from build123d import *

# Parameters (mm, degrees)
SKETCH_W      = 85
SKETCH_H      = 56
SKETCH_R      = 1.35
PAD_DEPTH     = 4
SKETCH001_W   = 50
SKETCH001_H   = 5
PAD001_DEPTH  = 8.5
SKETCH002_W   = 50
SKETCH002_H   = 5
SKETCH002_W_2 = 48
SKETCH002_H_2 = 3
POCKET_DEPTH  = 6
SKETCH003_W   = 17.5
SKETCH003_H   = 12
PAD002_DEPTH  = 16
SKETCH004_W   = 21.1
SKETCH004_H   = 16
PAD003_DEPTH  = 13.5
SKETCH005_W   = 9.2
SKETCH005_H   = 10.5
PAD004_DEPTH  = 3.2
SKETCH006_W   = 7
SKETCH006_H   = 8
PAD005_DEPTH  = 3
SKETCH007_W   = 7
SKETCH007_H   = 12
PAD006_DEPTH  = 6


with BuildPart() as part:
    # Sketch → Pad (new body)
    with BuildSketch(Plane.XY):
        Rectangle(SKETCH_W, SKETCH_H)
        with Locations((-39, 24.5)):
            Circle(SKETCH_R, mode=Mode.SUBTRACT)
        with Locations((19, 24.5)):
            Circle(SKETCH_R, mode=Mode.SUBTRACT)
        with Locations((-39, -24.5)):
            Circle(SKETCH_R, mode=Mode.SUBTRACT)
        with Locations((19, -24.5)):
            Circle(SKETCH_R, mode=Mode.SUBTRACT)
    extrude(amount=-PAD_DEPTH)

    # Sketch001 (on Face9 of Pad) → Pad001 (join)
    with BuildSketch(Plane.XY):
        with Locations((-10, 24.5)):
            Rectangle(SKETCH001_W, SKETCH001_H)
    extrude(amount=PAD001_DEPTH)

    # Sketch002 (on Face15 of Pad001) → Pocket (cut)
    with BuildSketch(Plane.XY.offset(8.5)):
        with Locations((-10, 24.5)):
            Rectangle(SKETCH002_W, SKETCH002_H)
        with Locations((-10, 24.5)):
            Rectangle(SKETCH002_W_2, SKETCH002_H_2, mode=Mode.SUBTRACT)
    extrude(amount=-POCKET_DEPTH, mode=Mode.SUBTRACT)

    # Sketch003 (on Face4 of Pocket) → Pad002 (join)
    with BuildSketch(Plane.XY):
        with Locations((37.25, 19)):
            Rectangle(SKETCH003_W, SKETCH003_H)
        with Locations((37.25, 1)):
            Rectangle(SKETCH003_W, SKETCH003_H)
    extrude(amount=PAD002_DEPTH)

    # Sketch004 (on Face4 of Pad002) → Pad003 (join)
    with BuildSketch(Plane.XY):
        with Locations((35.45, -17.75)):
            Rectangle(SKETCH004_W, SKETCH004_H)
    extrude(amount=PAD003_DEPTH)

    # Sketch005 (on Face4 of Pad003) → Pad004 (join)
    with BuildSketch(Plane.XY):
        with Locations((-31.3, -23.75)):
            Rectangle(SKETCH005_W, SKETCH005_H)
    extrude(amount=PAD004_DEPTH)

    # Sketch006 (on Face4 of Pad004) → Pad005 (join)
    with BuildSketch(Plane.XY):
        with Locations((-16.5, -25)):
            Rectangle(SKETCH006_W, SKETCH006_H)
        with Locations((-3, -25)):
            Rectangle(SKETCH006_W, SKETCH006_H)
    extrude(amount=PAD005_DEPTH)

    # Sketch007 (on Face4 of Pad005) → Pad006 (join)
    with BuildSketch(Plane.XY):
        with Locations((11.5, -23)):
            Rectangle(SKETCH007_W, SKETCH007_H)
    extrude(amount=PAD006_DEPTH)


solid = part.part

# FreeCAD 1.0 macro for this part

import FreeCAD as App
import Part
import Sketcher
from FreeCAD import Vector
Q = App.Units.Quantity

doc = App.newDocument("Part")
body = doc.addObject("PartDesign::Body", "Body")

# Sketch on XY plane
sketch1 = doc.addObject("Sketcher::SketchObject", "Sketch")
body.addObject(sketch1)
sketch1.AttachmentSupport = (doc.XY_Plane, [""])
sketch1.MapMode = "FlatFace"
sketch1.addGeometry(Part.LineSegment(Vector(-42.5, 28, 0), Vector(-42.5, -28, 0)), False)
sketch1.addGeometry(Part.LineSegment(Vector(-42.5, -28, 0), Vector(42.5, -28, 0)), False)
sketch1.addGeometry(Part.LineSegment(Vector(42.5, -28, 0), Vector(42.5, 28, 0)), False)
sketch1.addGeometry(Part.LineSegment(Vector(42.5, 28, 0), Vector(-42.5, 28, 0)), False)
sketch1.addGeometry(Part.Circle(Vector(-39, -24.5, 0), Vector(0, 0, 1), 1.35), False)
sketch1.addGeometry(Part.Circle(Vector(19, -24.5, 0), Vector(0, 0, 1), 1.35), False)
sketch1.addGeometry(Part.Circle(Vector(-39, 24.5, 0), Vector(0, 0, 1), 1.35), False)
sketch1.addGeometry(Part.Circle(Vector(19, 24.5, 0), Vector(0, 0, 1), 1.35), False)
sketch1.addConstraint(Sketcher.Constraint("Coincident", 0, 2, 1, 1))
sketch1.addConstraint(Sketcher.Constraint("Coincident", 1, 2, 2, 1))
sketch1.addConstraint(Sketcher.Constraint("Coincident", 2, 2, 3, 1))
sketch1.addConstraint(Sketcher.Constraint("Coincident", 3, 2, 0, 1))
sketch1.addConstraint(Sketcher.Constraint("Vertical", 0))
sketch1.addConstraint(Sketcher.Constraint("Horizontal", 1))
sketch1.addConstraint(Sketcher.Constraint("Vertical", 2))
sketch1.addConstraint(Sketcher.Constraint("Horizontal", 3))
sketch1.addConstraint(Sketcher.Constraint("Equal", 4, 5))
sketch1.addConstraint(Sketcher.Constraint("Equal", 5, 6))
sketch1.addConstraint(Sketcher.Constraint("Equal", 6, 7))
sketch1.addConstraint(Sketcher.Constraint("Symmetric", 0, 2, 2, 2, -1, 1))
sketch1.addConstraint(Sketcher.Constraint("Symmetric", 4, 3, 6, 3, -1))
sketch1.addConstraint(Sketcher.Constraint("Symmetric", 5, 3, 7, 3, -1))
sketch1.addConstraint(Sketcher.Constraint("Horizontal", 4, 3, 5, 3))
sketch1.addConstraint(Sketcher.Constraint("Diameter", 4, Q("2.7 mm")))
sketch1.addConstraint(Sketcher.Constraint("DistanceX", 1, 1, 1, 2, Q("85 mm")))
sketch1.addConstraint(Sketcher.Constraint("DistanceY", 0, 2, 0, 1, Q("56 mm")))
sketch1.addConstraint(Sketcher.Constraint("DistanceX", 4, 3, -1, 1, Q("39 mm")))
sketch1.addConstraint(Sketcher.Constraint("DistanceX", -1, 1, 5, 3, Q("19 mm")))
sketch1.addConstraint(Sketcher.Constraint("DistanceY", 4, 3, 6, 3, Q("49 mm")))
pad1 = doc.addObject("PartDesign::Pad", "Pad")
body.addObject(pad1)
pad1.Profile = sketch1
pad1.Length = 4
pad1.Reversed = True

# Sketch on XY plane
sketch2 = doc.addObject("Sketcher::SketchObject", "Sketch001")
body.addObject(sketch2)
sketch2.AttachmentSupport = (doc.XY_Plane, [""])
sketch2.MapMode = "FlatFace"
sketch2.addGeometry(Part.LineSegment(Vector(-35, 27, 0), Vector(-35, 22, 0)), False)
sketch2.addGeometry(Part.LineSegment(Vector(-35, 22, 0), Vector(15, 22, 0)), False)
sketch2.addGeometry(Part.LineSegment(Vector(15, 22, 0), Vector(15, 27, 0)), False)
sketch2.addGeometry(Part.LineSegment(Vector(15, 27, 0), Vector(-35, 27, 0)), False)
sketch2.addConstraint(Sketcher.Constraint("Coincident", 0, 2, 1, 1))
sketch2.addConstraint(Sketcher.Constraint("Coincident", 1, 2, 2, 1))
sketch2.addConstraint(Sketcher.Constraint("Coincident", 2, 2, 3, 1))
sketch2.addConstraint(Sketcher.Constraint("Coincident", 3, 2, 0, 1))
sketch2.addConstraint(Sketcher.Constraint("Vertical", 0))
sketch2.addConstraint(Sketcher.Constraint("Horizontal", 1))
sketch2.addConstraint(Sketcher.Constraint("Vertical", 2))
sketch2.addConstraint(Sketcher.Constraint("Horizontal", 3))
sketch2.addConstraint(Sketcher.Constraint("DistanceX", 1, 1, 1, 2, Q("50 mm")))
sketch2.addConstraint(Sketcher.Constraint("DistanceY", 0, 2, 0, 1, Q("5 mm")))
sketch2.addConstraint(Sketcher.Constraint("DistanceX", 0, 2, -1, 1, Q("35 mm")))
sketch2.addConstraint(Sketcher.Constraint("DistanceY", -1, 1, 0, 2, Q("22 mm")))
pad2 = doc.addObject("PartDesign::Pad", "Pad001")
body.addObject(pad2)
pad2.Profile = sketch2
pad2.Length = 8.5

# Sketch on XY plane
sketch3 = doc.addObject("Sketcher::SketchObject", "Sketch002")
body.addObject(sketch3)
sketch3.AttachmentSupport = (doc.XY_Plane, [""])
sketch3.MapMode = "FlatFace"
sketch3.AttachmentOffset = App.Placement(Vector(0, 0, 8.5), App.Rotation())
sketch3.addGeometry(Part.LineSegment(Vector(-35, 27, 0), Vector(-35, 22, 0)), False)
sketch3.addGeometry(Part.LineSegment(Vector(-35, 22, 0), Vector(15, 22, 0)), False)
sketch3.addGeometry(Part.LineSegment(Vector(15, 22, 0), Vector(15, 27, 0)), False)
sketch3.addGeometry(Part.LineSegment(Vector(15, 27, 0), Vector(-35, 27, 0)), False)
sketch3.addGeometry(Part.LineSegment(Vector(14, 23, 0), Vector(-34, 23, 0)), False)
sketch3.addGeometry(Part.LineSegment(Vector(-34, 23, 0), Vector(-34, 26, 0)), False)
sketch3.addGeometry(Part.LineSegment(Vector(-34, 26, 0), Vector(14, 26, 0)), False)
sketch3.addGeometry(Part.LineSegment(Vector(14, 26, 0), Vector(14, 23, 0)), False)
sketch3.addConstraint(Sketcher.Constraint("Coincident", 0, 2, 1, 1))
sketch3.addConstraint(Sketcher.Constraint("Coincident", 1, 2, 2, 1))
sketch3.addConstraint(Sketcher.Constraint("Coincident", 2, 2, 3, 1))
sketch3.addConstraint(Sketcher.Constraint("Coincident", 3, 2, 0, 1))
sketch3.addConstraint(Sketcher.Constraint("Coincident", 4, 2, 5, 1))
sketch3.addConstraint(Sketcher.Constraint("Coincident", 5, 2, 6, 1))
sketch3.addConstraint(Sketcher.Constraint("Coincident", 6, 2, 7, 1))
sketch3.addConstraint(Sketcher.Constraint("Coincident", 7, 2, 4, 1))
sketch3.addConstraint(Sketcher.Constraint("Vertical", 0))
sketch3.addConstraint(Sketcher.Constraint("Horizontal", 1))
sketch3.addConstraint(Sketcher.Constraint("Vertical", 2))
sketch3.addConstraint(Sketcher.Constraint("Horizontal", 3))
sketch3.addConstraint(Sketcher.Constraint("Horizontal", 4))
sketch3.addConstraint(Sketcher.Constraint("Vertical", 5))
sketch3.addConstraint(Sketcher.Constraint("Horizontal", 6))
sketch3.addConstraint(Sketcher.Constraint("Vertical", 7))
sketch3.addConstraint(Sketcher.Constraint("DistanceX", 1, 1, 1, 2, Q("50 mm")))
sketch3.addConstraint(Sketcher.Constraint("DistanceX", 4, 2, 4, 1, Q("48 mm")))
sketch3.addConstraint(Sketcher.Constraint("DistanceY", 0, 2, 0, 1, Q("5 mm")))
sketch3.addConstraint(Sketcher.Constraint("DistanceY", 5, 1, 5, 2, Q("3 mm")))
sketch3.addConstraint(Sketcher.Constraint("DistanceX", 0, 2, -1, 1, Q("35 mm")))
sketch3.addConstraint(Sketcher.Constraint("DistanceY", -1, 1, 0, 2, Q("22 mm")))
sketch3.addConstraint(Sketcher.Constraint("DistanceX", 4, 2, -1, 1, Q("34 mm")))
sketch3.addConstraint(Sketcher.Constraint("DistanceY", -1, 1, 4, 2, Q("23 mm")))
pocket1 = doc.addObject("PartDesign::Pocket", "Pocket")
body.addObject(pocket1)
pocket1.Profile = sketch3
pocket1.Length = 6

# Sketch on XY plane
sketch4 = doc.addObject("Sketcher::SketchObject", "Sketch003")
body.addObject(sketch4)
sketch4.AttachmentSupport = (doc.XY_Plane, [""])
sketch4.MapMode = "FlatFace"
sketch4.addGeometry(Part.LineSegment(Vector(28.5, 25, 0), Vector(28.5, 13, 0)), False)
sketch4.addGeometry(Part.LineSegment(Vector(28.5, 13, 0), Vector(46, 13, 0)), False)
sketch4.addGeometry(Part.LineSegment(Vector(46, 13, 0), Vector(46, 25, 0)), False)
sketch4.addGeometry(Part.LineSegment(Vector(46, 25, 0), Vector(28.5, 25, 0)), False)
sketch4.addGeometry(Part.LineSegment(Vector(28.5, 7, 0), Vector(28.5, -5, 0)), False)
sketch4.addGeometry(Part.LineSegment(Vector(28.5, -5, 0), Vector(46, -5, 0)), False)
sketch4.addGeometry(Part.LineSegment(Vector(46, -5, 0), Vector(46, 7, 0)), False)
sketch4.addGeometry(Part.LineSegment(Vector(46, 7, 0), Vector(28.5, 7, 0)), False)
sketch4.addConstraint(Sketcher.Constraint("Coincident", 0, 2, 1, 1))
sketch4.addConstraint(Sketcher.Constraint("Coincident", 1, 2, 2, 1))
sketch4.addConstraint(Sketcher.Constraint("Coincident", 2, 2, 3, 1))
sketch4.addConstraint(Sketcher.Constraint("Coincident", 3, 2, 0, 1))
sketch4.addConstraint(Sketcher.Constraint("Coincident", 4, 2, 5, 1))
sketch4.addConstraint(Sketcher.Constraint("Coincident", 5, 2, 6, 1))
sketch4.addConstraint(Sketcher.Constraint("Coincident", 6, 2, 7, 1))
sketch4.addConstraint(Sketcher.Constraint("Coincident", 7, 2, 4, 1))
sketch4.addConstraint(Sketcher.Constraint("Vertical", 0))
sketch4.addConstraint(Sketcher.Constraint("Horizontal", 1))
sketch4.addConstraint(Sketcher.Constraint("Vertical", 2))
sketch4.addConstraint(Sketcher.Constraint("Horizontal", 3))
sketch4.addConstraint(Sketcher.Constraint("Vertical", 4))
sketch4.addConstraint(Sketcher.Constraint("Horizontal", 5))
sketch4.addConstraint(Sketcher.Constraint("Vertical", 6))
sketch4.addConstraint(Sketcher.Constraint("Horizontal", 7))
sketch4.addConstraint(Sketcher.Constraint("Vertical", 3, 2, 4, 2))
sketch4.addConstraint(Sketcher.Constraint("Vertical", 2, 2, 5, 2))
sketch4.addConstraint(Sketcher.Constraint("Equal", 2, 4))
sketch4.addConstraint(Sketcher.Constraint("DistanceY", 0, 2, 0, 1, Q("12 mm")))
sketch4.addConstraint(Sketcher.Constraint("DistanceX", 1, 1, 1, 2, Q("17.5 mm")))
sketch4.addConstraint(Sketcher.Constraint("DistanceY", -1, 1, 0, 2, Q("13 mm")))
sketch4.addConstraint(Sketcher.Constraint("DistanceX", -1, 1, 1, 2, Q("46 mm")))
sketch4.addConstraint(Sketcher.Constraint("DistanceY", 4, 2, -1, 1, Q("5 mm")))
pad3 = doc.addObject("PartDesign::Pad", "Pad002")
body.addObject(pad3)
pad3.Profile = sketch4
pad3.Length = 16

# Sketch on XY plane
sketch5 = doc.addObject("Sketcher::SketchObject", "Sketch004")
body.addObject(sketch5)
sketch5.AttachmentSupport = (doc.XY_Plane, [""])
sketch5.MapMode = "FlatFace"
sketch5.addGeometry(Part.LineSegment(Vector(24.9, -9.75, 0), Vector(24.9, -25.75, 0)), False)
sketch5.addGeometry(Part.LineSegment(Vector(24.9, -25.75, 0), Vector(46, -25.75, 0)), False)
sketch5.addGeometry(Part.LineSegment(Vector(46, -25.75, 0), Vector(46, -9.75, 0)), False)
sketch5.addGeometry(Part.LineSegment(Vector(46, -9.75, 0), Vector(24.9, -9.75, 0)), False)
sketch5.addConstraint(Sketcher.Constraint("Coincident", 0, 2, 1, 1))
sketch5.addConstraint(Sketcher.Constraint("Coincident", 1, 2, 2, 1))
sketch5.addConstraint(Sketcher.Constraint("Coincident", 2, 2, 3, 1))
sketch5.addConstraint(Sketcher.Constraint("Coincident", 3, 2, 0, 1))
sketch5.addConstraint(Sketcher.Constraint("Vertical", 0))
sketch5.addConstraint(Sketcher.Constraint("Horizontal", 1))
sketch5.addConstraint(Sketcher.Constraint("Vertical", 2))
sketch5.addConstraint(Sketcher.Constraint("Horizontal", 3))
sketch5.addConstraint(Sketcher.Constraint("DistanceY", 0, 2, 0, 1, Q("16 mm")))
sketch5.addConstraint(Sketcher.Constraint("DistanceX", 1, 1, 1, 2, Q("21.1 mm")))
sketch5.addConstraint(Sketcher.Constraint("DistanceX", -1, 1, 1, 2, Q("46 mm")))
sketch5.addConstraint(Sketcher.Constraint("DistanceY", 0, 2, -1, 1, Q("25.75 mm")))
pad4 = doc.addObject("PartDesign::Pad", "Pad003")
body.addObject(pad4)
pad4.Profile = sketch5
pad4.Length = 13.5

# Sketch on XY plane
sketch6 = doc.addObject("Sketcher::SketchObject", "Sketch005")
body.addObject(sketch6)
sketch6.AttachmentSupport = (doc.XY_Plane, [""])
sketch6.MapMode = "FlatFace"
sketch6.addGeometry(Part.LineSegment(Vector(-35.9, -18.5, 0), Vector(-35.9, -29, 0)), False)
sketch6.addGeometry(Part.LineSegment(Vector(-35.9, -29, 0), Vector(-26.7, -29, 0)), False)
sketch6.addGeometry(Part.LineSegment(Vector(-26.7, -29, 0), Vector(-26.7, -18.5, 0)), False)
sketch6.addGeometry(Part.LineSegment(Vector(-26.7, -18.5, 0), Vector(-35.9, -18.5, 0)), False)
sketch6.addConstraint(Sketcher.Constraint("Coincident", 0, 2, 1, 1))
sketch6.addConstraint(Sketcher.Constraint("Coincident", 1, 2, 2, 1))
sketch6.addConstraint(Sketcher.Constraint("Coincident", 2, 2, 3, 1))
sketch6.addConstraint(Sketcher.Constraint("Coincident", 3, 2, 0, 1))
sketch6.addConstraint(Sketcher.Constraint("Vertical", 0))
sketch6.addConstraint(Sketcher.Constraint("Horizontal", 1))
sketch6.addConstraint(Sketcher.Constraint("Vertical", 2))
sketch6.addConstraint(Sketcher.Constraint("Horizontal", 3))
sketch6.addConstraint(Sketcher.Constraint("DistanceX", 1, 1, 1, 2, Q("9.2 mm")))
sketch6.addConstraint(Sketcher.Constraint("DistanceY", 0, 2, 0, 1, Q("10.5 mm")))
sketch6.addConstraint(Sketcher.Constraint("DistanceY", 0, 2, -1, 1, Q("29 mm")))
sketch6.addConstraint(Sketcher.Constraint("DistanceX", 0, 2, -1, 1, Q("35.9 mm")))
pad5 = doc.addObject("PartDesign::Pad", "Pad004")
body.addObject(pad5)
pad5.Profile = sketch6
pad5.Length = 3.2

# Sketch on XY plane
sketch7 = doc.addObject("Sketcher::SketchObject", "Sketch006")
body.addObject(sketch7)
sketch7.AttachmentSupport = (doc.XY_Plane, [""])
sketch7.MapMode = "FlatFace"
sketch7.addGeometry(Part.LineSegment(Vector(-20, -21, 0), Vector(-20, -29, 0)), False)
sketch7.addGeometry(Part.LineSegment(Vector(-20, -29, 0), Vector(-13, -29, 0)), False)
sketch7.addGeometry(Part.LineSegment(Vector(-13, -29, 0), Vector(-13, -21, 0)), False)
sketch7.addGeometry(Part.LineSegment(Vector(-13, -21, 0), Vector(-20, -21, 0)), False)
sketch7.addGeometry(Part.LineSegment(Vector(-6.5, -21, 0), Vector(-6.5, -29, 0)), False)
sketch7.addGeometry(Part.LineSegment(Vector(-6.5, -29, 0), Vector(0.5, -29, 0)), False)
sketch7.addGeometry(Part.LineSegment(Vector(0.5, -29, 0), Vector(0.5, -21, 0)), False)
sketch7.addGeometry(Part.LineSegment(Vector(0.5, -21, 0), Vector(-6.5, -21, 0)), False)
sketch7.addConstraint(Sketcher.Constraint("Coincident", 0, 2, 1, 1))
sketch7.addConstraint(Sketcher.Constraint("Coincident", 1, 2, 2, 1))
sketch7.addConstraint(Sketcher.Constraint("Coincident", 2, 2, 3, 1))
sketch7.addConstraint(Sketcher.Constraint("Coincident", 3, 2, 0, 1))
sketch7.addConstraint(Sketcher.Constraint("Coincident", 4, 2, 5, 1))
sketch7.addConstraint(Sketcher.Constraint("Coincident", 5, 2, 6, 1))
sketch7.addConstraint(Sketcher.Constraint("Coincident", 6, 2, 7, 1))
sketch7.addConstraint(Sketcher.Constraint("Coincident", 7, 2, 4, 1))
sketch7.addConstraint(Sketcher.Constraint("Vertical", 0))
sketch7.addConstraint(Sketcher.Constraint("Horizontal", 1))
sketch7.addConstraint(Sketcher.Constraint("Vertical", 2))
sketch7.addConstraint(Sketcher.Constraint("Horizontal", 3))
sketch7.addConstraint(Sketcher.Constraint("Vertical", 4))
sketch7.addConstraint(Sketcher.Constraint("Horizontal", 5))
sketch7.addConstraint(Sketcher.Constraint("Vertical", 6))
sketch7.addConstraint(Sketcher.Constraint("Horizontal", 7))
sketch7.addConstraint(Sketcher.Constraint("Horizontal", 1, 2, 4, 2))
sketch7.addConstraint(Sketcher.Constraint("Horizontal", 3, 2, 6, 2))
sketch7.addConstraint(Sketcher.Constraint("Equal", 3, 5))
sketch7.addConstraint(Sketcher.Constraint("DistanceX", 1, 1, 1, 2, Q("7 mm")))
sketch7.addConstraint(Sketcher.Constraint("DistanceY", 0, 2, 0, 1, Q("8 mm")))
sketch7.addConstraint(Sketcher.Constraint("DistanceX", 0, 2, -1, 1, Q("20 mm")))
sketch7.addConstraint(Sketcher.Constraint("DistanceY", 0, 2, -1, 1, Q("29 mm")))
sketch7.addConstraint(Sketcher.Constraint("DistanceX", 4, 2, -1, 1, Q("6.5 mm")))
pad6 = doc.addObject("PartDesign::Pad", "Pad005")
body.addObject(pad6)
pad6.Profile = sketch7
pad6.Length = 3

# Sketch on XY plane
sketch8 = doc.addObject("Sketcher::SketchObject", "Sketch007")
body.addObject(sketch8)
sketch8.AttachmentSupport = (doc.XY_Plane, [""])
sketch8.MapMode = "FlatFace"
sketch8.addGeometry(Part.LineSegment(Vector(8, -17, 0), Vector(8, -29, 0)), False)
sketch8.addGeometry(Part.LineSegment(Vector(8, -29, 0), Vector(15, -29, 0)), False)
sketch8.addGeometry(Part.LineSegment(Vector(15, -29, 0), Vector(15, -17, 0)), False)
sketch8.addGeometry(Part.LineSegment(Vector(15, -17, 0), Vector(8, -17, 0)), False)
sketch8.addConstraint(Sketcher.Constraint("Coincident", 0, 2, 1, 1))
sketch8.addConstraint(Sketcher.Constraint("Coincident", 1, 2, 2, 1))
sketch8.addConstraint(Sketcher.Constraint("Coincident", 2, 2, 3, 1))
sketch8.addConstraint(Sketcher.Constraint("Coincident", 3, 2, 0, 1))
sketch8.addConstraint(Sketcher.Constraint("Vertical", 0))
sketch8.addConstraint(Sketcher.Constraint("Horizontal", 1))
sketch8.addConstraint(Sketcher.Constraint("Vertical", 2))
sketch8.addConstraint(Sketcher.Constraint("Horizontal", 3))
sketch8.addConstraint(Sketcher.Constraint("DistanceX", 1, 1, 1, 2, Q("7 mm")))
sketch8.addConstraint(Sketcher.Constraint("DistanceY", 0, 2, 0, 1, Q("12 mm")))
sketch8.addConstraint(Sketcher.Constraint("DistanceX", -1, 1, 0, 2, Q("8 mm")))
sketch8.addConstraint(Sketcher.Constraint("DistanceY", 0, 2, -1, 1, Q("29 mm")))
pad7 = doc.addObject("PartDesign::Pad", "Pad006")
body.addObject(pad7)
pad7.Profile = sketch8
pad7.Length = 6

doc.recompute()
